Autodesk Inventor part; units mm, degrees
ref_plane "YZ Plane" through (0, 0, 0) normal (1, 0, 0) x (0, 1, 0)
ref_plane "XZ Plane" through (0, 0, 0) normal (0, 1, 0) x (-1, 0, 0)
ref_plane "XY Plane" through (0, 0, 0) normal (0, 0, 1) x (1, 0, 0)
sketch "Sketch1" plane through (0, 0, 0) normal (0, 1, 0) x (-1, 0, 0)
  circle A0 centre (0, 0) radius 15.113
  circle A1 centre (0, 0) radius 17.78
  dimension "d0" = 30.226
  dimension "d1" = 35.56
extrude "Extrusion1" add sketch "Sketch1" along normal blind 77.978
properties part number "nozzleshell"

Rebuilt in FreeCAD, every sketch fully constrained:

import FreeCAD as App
import Part
import Sketcher
Q = App.Units.Quantity

doc = App.newDocument("Part")
params = doc.addObject("Spreadsheet::Sheet", "Params")
for row, (alias, value) in enumerate([
    ("sketch1_diameter", "1.4 in"),
    ("sketch1_diameter2", "1.19 in"),
    ("pad1_length", "3.07 in"),
], start=1):
    params.set(f"A{row}", alias)
    params.set(f"B{row}", "=" + value)
    params.setAlias(f"B{row}", alias)

body = doc.addObject("PartDesign::Body", "Body")

# Sketch on XZ plane
sketch1 = doc.addObject("Sketcher::SketchObject", "Sketch")
body.addObject(sketch1)
sketch1.AttachmentSupport = (doc.XZ_Plane, [""])
sketch1.MapMode = "FlatFace"
sketch1.addGeometry([
    Part.Circle(App.Vector(0, 0, 0), App.Vector(0, 0, 1), 18),
    Part.Circle(App.Vector(0, 0, 0), App.Vector(0, 0, 1), 15),
], False)
sketch1.addConstraint([
    Sketcher.Constraint("Coincident", 0, 3, -1, 1),
    Sketcher.Constraint("Coincident", 1, 3, -1, 1),
    Sketcher.Constraint("Diameter", 0, Q("1.4 in")),
    Sketcher.Constraint("Diameter", 1, Q("1.19 in")),
])
sketch1.setExpression("Constraints[2]", "Params.sketch1_diameter")
sketch1.setExpression("Constraints[3]", "Params.sketch1_diameter2")
pad1 = doc.addObject("PartDesign::Pad", "Pad")
body.addObject(pad1)
pad1.Profile = sketch1
pad1.setExpression("Length", "Params.pad1_length")
pad1.Reversed = True

doc.recompute()
